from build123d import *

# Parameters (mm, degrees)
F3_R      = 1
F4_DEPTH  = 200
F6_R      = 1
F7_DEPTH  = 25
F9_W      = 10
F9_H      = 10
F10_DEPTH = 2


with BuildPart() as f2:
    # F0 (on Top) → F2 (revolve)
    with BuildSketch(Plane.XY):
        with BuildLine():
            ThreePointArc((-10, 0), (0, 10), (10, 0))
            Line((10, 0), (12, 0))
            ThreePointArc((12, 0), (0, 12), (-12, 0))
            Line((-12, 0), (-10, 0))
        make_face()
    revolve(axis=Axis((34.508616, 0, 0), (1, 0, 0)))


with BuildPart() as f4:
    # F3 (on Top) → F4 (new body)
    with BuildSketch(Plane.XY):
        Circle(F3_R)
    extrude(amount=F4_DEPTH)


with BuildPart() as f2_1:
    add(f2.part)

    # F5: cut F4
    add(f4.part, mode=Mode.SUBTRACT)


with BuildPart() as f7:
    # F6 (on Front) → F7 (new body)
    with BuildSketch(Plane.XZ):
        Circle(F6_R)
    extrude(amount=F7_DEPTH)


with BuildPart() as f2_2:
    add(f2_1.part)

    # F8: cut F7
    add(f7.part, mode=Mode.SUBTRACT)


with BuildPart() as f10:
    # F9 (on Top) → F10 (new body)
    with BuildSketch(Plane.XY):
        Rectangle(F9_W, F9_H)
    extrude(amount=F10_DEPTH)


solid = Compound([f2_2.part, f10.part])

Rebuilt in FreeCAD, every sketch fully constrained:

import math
import FreeCAD as App
import Part
import Sketcher

doc = App.newDocument("Part")
body = doc.addObject("PartDesign::Body", "Body")

# Sketch on XY plane
sketch1 = body.newObject("Sketcher::SketchObject", "Sketch")
sketch1.AttachmentSupport = (doc.getObject("XY_Plane"), [""])
sketch1.MapMode = "FlatFace"
sketch1.addGeometry(Part.ArcOfCircle(Part.Circle(App.Vector(0, 0, 0), App.Vector(0, 0, 1), 10), math.radians(0), math.radians(180)), False)
sketch1.addGeometry(Part.LineSegment(App.Vector(10, 0, 0), App.Vector(12, 0, 0)), False)
sketch1.addGeometry(Part.ArcOfCircle(Part.Circle(App.Vector(0, 0, 0), App.Vector(0, 0, 1), 12), math.radians(0), math.radians(180)), False)
sketch1.addGeometry(Part.LineSegment(App.Vector(-12, 0, 0), App.Vector(-10, 0, 0)), False)
sketch1.addConstraint(Sketcher.Constraint("Coincident", 0, 1, 1, 1))
sketch1.addConstraint(Sketcher.Constraint("Coincident", 1, 2, 2, 1))
sketch1.addConstraint(Sketcher.Constraint("Coincident", 2, 2, 3, 1))
sketch1.addConstraint(Sketcher.Constraint("Coincident", 3, 2, 0, 2))
sketch1.addConstraint(Sketcher.Constraint("Horizontal", 1))
sketch1.addConstraint(Sketcher.Constraint("Horizontal", 3))
sketch1.addConstraint(Sketcher.Constraint("Coincident", 0, 3, -1, 1))
sketch1.addConstraint(Sketcher.Constraint("Coincident", 2, 3, -1, 1))
sketch1.addConstraint(Sketcher.Constraint("PointOnObject", 0, 1, -1))
sketch1.addConstraint(Sketcher.Constraint("PointOnObject", 2, 2, -1))
sketch1.addConstraint(Sketcher.Constraint("Radius", 0, 10.0))
sketch1.addConstraint(Sketcher.Constraint("Radius", 2, 12.0))
revolution = body.newObject("PartDesign::Revolution", "Revolution")
revolution.Profile = sketch1
revolution.ReferenceAxis = (sketch1, ["H_Axis"])
revolution.Angle = 360
body2 = doc.addObject("PartDesign::Body", "Body001")

# Sketch on XY plane
sketch2 = body2.newObject("Sketcher::SketchObject", "Sketch001")
sketch2.AttachmentSupport = (doc.getObject("XY_Plane001"), [""])
sketch2.MapMode = "FlatFace"
sketch2.addGeometry(Part.Circle(App.Vector(0, 0, 0), App.Vector(0, 0, 1), 1), False)
sketch2.addConstraint(Sketcher.Constraint("Coincident", 0, 3, -1, 1))
sketch2.addConstraint(Sketcher.Constraint("Diameter", 0, 2.0))
pad1 = body2.newObject("PartDesign::Pad", "Pad")
pad1.Profile = sketch2
pad1.Length = 200
doc.recompute()

boolean = body.newObject("PartDesign::Boolean", "Boolean")
boolean.Type = "Cut"
boolean.addObjects([body2])
body3 = doc.addObject("PartDesign::Body", "Body002")

# Sketch on XZ plane
sketch3 = body3.newObject("Sketcher::SketchObject", "Sketch002")
sketch3.AttachmentSupport = (doc.getObject("XZ_Plane002"), [""])
sketch3.MapMode = "FlatFace"
sketch3.addGeometry(Part.Circle(App.Vector(0, 0, 0), App.Vector(0, 0, 1), 1), False)
sketch3.addConstraint(Sketcher.Constraint("Coincident", 0, 3, -1, 1))
sketch3.addConstraint(Sketcher.Constraint("Diameter", 0, 2.0))
pad2 = body3.newObject("PartDesign::Pad", "Pad001")
pad2.Profile = sketch3
pad2.Length = 25
doc.recompute()

boolean2 = body.newObject("PartDesign::Boolean", "Boolean001")
boolean2.Type = "Cut"
boolean2.addObjects([body3])
body4 = doc.addObject("PartDesign::Body", "Body003")

# Sketch on XY plane
sketch4 = body4.newObject("Sketcher::SketchObject", "Sketch003")
sketch4.AttachmentSupport = (doc.getObject("XY_Plane003"), [""])
sketch4.MapMode = "FlatFace"
sketch4.addGeometry(Part.LineSegment(App.Vector(-5, 5, 0), App.Vector(-5, -5, 0)), False)
sketch4.addGeometry(Part.LineSegment(App.Vector(-5, -5, 0), App.Vector(5, -5, 0)), False)
sketch4.addGeometry(Part.LineSegment(App.Vector(5, -5, 0), App.Vector(5, 5, 0)), False)
sketch4.addGeometry(Part.LineSegment(App.Vector(5, 5, 0), App.Vector(-5, 5, 0)), False)
sketch4.addConstraint(Sketcher.Constraint("Coincident", 0, 2, 1, 1))
sketch4.addConstraint(Sketcher.Constraint("Coincident", 1, 2, 2, 1))
sketch4.addConstraint(Sketcher.Constraint("Coincident", 2, 2, 3, 1))
sketch4.addConstraint(Sketcher.Constraint("Coincident", 3, 2, 0, 1))
sketch4.addConstraint(Sketcher.Constraint("Vertical", 0))
sketch4.addConstraint(Sketcher.Constraint("Horizontal", 1))
sketch4.addConstraint(Sketcher.Constraint("Vertical", 2))
sketch4.addConstraint(Sketcher.Constraint("Horizontal", 3))
sketch4.addConstraint(Sketcher.Constraint("Symmetric", 0, 2, 2, 2, -1, 1))
sketch4.addConstraint(Sketcher.Constraint("Equal", 3, 0))
sketch4.addConstraint(Sketcher.Constraint("DistanceX", 1, 1, 1, 2, 10.0))
pad3 = body4.newObject("PartDesign::Pad", "Pad002")
pad3.Profile = sketch4
pad3.Length = 2

doc.recompute()
